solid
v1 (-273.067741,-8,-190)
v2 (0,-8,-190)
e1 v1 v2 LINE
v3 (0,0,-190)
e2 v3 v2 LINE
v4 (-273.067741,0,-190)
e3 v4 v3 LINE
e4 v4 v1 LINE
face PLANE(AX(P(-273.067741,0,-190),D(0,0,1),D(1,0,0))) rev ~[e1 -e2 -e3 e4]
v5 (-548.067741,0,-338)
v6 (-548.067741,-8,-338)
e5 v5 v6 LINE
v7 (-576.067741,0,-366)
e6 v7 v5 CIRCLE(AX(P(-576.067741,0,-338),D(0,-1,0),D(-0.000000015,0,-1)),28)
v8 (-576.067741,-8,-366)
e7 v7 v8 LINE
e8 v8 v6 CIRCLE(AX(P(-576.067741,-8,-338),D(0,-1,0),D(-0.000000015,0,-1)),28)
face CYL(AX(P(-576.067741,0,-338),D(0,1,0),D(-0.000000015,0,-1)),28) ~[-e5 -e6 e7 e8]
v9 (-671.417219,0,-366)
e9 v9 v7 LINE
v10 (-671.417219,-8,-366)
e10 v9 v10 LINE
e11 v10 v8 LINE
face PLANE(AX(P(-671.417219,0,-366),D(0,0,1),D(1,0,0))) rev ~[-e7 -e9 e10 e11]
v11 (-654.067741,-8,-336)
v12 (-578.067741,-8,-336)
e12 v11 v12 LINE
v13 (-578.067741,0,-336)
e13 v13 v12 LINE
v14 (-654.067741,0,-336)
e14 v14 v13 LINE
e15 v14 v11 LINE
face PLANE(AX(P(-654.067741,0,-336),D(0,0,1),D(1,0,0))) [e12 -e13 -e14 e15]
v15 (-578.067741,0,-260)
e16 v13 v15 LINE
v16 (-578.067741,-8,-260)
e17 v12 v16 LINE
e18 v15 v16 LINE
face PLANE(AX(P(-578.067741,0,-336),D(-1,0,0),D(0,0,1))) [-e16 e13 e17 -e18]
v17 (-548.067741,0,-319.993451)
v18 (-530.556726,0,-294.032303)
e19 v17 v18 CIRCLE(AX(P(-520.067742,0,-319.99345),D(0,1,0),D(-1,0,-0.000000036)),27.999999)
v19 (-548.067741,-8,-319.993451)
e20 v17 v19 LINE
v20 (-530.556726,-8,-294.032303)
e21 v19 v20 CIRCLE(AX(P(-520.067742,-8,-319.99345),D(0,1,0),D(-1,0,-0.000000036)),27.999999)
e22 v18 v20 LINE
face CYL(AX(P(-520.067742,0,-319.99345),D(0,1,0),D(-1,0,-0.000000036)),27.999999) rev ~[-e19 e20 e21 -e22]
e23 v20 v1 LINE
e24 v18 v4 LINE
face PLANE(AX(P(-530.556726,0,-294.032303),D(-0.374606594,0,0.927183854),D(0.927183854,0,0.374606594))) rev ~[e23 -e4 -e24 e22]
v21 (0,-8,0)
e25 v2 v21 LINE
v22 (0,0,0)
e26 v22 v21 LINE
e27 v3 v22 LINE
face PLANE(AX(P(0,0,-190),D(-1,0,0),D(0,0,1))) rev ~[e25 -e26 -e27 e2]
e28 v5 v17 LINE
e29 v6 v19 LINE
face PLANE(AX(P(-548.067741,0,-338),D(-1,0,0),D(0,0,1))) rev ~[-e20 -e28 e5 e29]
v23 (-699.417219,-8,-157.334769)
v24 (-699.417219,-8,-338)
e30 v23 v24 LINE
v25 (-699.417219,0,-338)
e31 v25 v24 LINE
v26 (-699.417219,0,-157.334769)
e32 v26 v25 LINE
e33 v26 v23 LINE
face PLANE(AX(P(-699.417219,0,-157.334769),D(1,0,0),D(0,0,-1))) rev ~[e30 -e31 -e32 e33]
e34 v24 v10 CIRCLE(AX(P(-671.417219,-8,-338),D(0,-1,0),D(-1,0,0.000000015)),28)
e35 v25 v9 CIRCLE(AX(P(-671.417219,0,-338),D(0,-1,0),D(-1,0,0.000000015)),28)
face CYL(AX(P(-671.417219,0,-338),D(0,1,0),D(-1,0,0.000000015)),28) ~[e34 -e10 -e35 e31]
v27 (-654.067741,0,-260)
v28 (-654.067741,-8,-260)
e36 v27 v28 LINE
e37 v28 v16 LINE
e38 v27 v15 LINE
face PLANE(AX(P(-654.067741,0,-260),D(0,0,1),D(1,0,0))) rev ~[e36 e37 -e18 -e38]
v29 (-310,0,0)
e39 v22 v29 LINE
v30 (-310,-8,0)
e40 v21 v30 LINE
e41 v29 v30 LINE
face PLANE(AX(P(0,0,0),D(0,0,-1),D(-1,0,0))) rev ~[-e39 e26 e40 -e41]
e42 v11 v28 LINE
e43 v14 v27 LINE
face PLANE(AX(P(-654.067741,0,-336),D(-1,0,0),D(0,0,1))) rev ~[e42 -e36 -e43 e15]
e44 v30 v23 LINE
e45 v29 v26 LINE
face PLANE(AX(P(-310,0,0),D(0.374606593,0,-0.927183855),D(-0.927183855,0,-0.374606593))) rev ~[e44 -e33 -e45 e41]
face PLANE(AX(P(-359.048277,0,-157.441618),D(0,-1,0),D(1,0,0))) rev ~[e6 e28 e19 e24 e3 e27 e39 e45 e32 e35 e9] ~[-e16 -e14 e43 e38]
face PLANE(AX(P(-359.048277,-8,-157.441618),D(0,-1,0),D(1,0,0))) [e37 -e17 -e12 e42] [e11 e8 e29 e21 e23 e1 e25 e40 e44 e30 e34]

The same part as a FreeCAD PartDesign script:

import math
import FreeCAD as App
import Part
import Sketcher

V = App.Vector
Q = App.Units.Quantity


def add_polygon(sketch, points):
    """Adds a closed chain of lines whose ends are joined by coincident constraints."""
    first, n = sketch.GeometryCount, len(points)
    for a, b in zip(points, points[1:] + points[:1]):
        sketch.addGeometry(Part.LineSegment(App.Vector(*a, 0), App.Vector(*b, 0)), False)
    for i in range(n):
        sketch.addConstraint(Sketcher.Constraint("Coincident", first + i, 2, first + (i + 1) % n, 1))

doc = App.newDocument("Part")
body = doc.addObject("PartDesign::Body", "Body")

# Sketch on XZ plane
sketch1 = body.newObject("Sketcher::SketchObject", "Sketch")
sketch1.AttachmentSupport = (doc.getObject("XZ_Plane"), [""])
sketch1.MapMode = "FlatFace"
sketch1.addGeometry(Part.LineSegment(V(0, -190, 0), V(0, 0, 0)), False)  # 0
sketch1.addGeometry(Part.LineSegment(V(0, 0, 0), V(-310, 0, 0)), False)  # 1
sketch1.addGeometry(Part.LineSegment(V(-310, 0, 0), V(-699, -157, 0)), False)  # 2
sketch1.addGeometry(Part.LineSegment(V(-699, -157, 0), V(-699, -338, 0)), False)  # 3
sketch1.addGeometry(Part.ArcOfCircle(Part.Circle(V(-671, -338, 0), V(0, 0, 1), 28), math.radians(180), math.radians(270)), False)  # 4
sketch1.addGeometry(Part.LineSegment(V(-671, -366, 0), V(-576, -366, 0)), False)  # 5
sketch1.addGeometry(Part.ArcOfCircle(Part.Circle(V(-576, -338, 0), V(0, 0, 1), 28), math.radians(-90), math.radians(0)), False)  # 6
sketch1.addGeometry(Part.LineSegment(V(-548, -338, 0), V(-548, -320, 0)), False)  # 7
sketch1.addGeometry(Part.ArcOfCircle(Part.Circle(V(-520, -320, 0), V(0, 0, 1), 28), math.radians(112), math.radians(180)), False)  # 8
sketch1.addGeometry(Part.LineSegment(V(-531, -294, 0), V(-273, -190, 0)), False)  # 9
sketch1.addGeometry(Part.LineSegment(V(-273, -190, 0), V(0, -190, 0)), False)  # 10
add_polygon(sketch1, [(-578, -336), (-654, -336), (-654, -260), (-578, -260)])  # lines 11-14
sketch1.addConstraint([
    Sketcher.Constraint("Coincident", 0, 2, 1, 1),
    Sketcher.Constraint("Coincident", 1, 2, 2, 1),
    Sketcher.Constraint("Coincident", 2, 2, 3, 1),
    Sketcher.Constraint("Tangent", 3, 2, 4, 1),
    Sketcher.Constraint("Tangent", 4, 2, 5, 1),
    Sketcher.Constraint("Tangent", 5, 2, 6, 1),
    Sketcher.Constraint("Tangent", 6, 2, 7, 1),
    Sketcher.Constraint("Tangent", 7, 2, 8, 2),
    Sketcher.Constraint("Tangent", 8, 1, 9, 1),
    Sketcher.Constraint("Coincident", 9, 2, 10, 1),
    Sketcher.Constraint("Coincident", 10, 2, 0, 1),
    Sketcher.Constraint("Vertical", 0),
    Sketcher.Constraint("Horizontal", 1),
    Sketcher.Constraint("Vertical", 3),
    Sketcher.Constraint("Horizontal", 5),
    Sketcher.Constraint("Vertical", 7),
    Sketcher.Constraint("Horizontal", 10),
    Sketcher.Constraint("Horizontal", 11),
    Sketcher.Constraint("Vertical", 12),
    Sketcher.Constraint("Horizontal", 13),
    Sketcher.Constraint("Vertical", 14),
    Sketcher.Constraint("Coincident", 0, 2, -1, 1),
    Sketcher.Constraint("Equal", 4, 6),
    Sketcher.Constraint("Equal", 6, 8),
    Sketcher.Constraint("Parallel", 2, 9),
    Sketcher.Constraint("Equal", 13, 12),
    Sketcher.Constraint("Radius", 4, Q("28 mm")),
    Sketcher.Constraint("DistanceX", 1, 2, 1, 1, Q("310 mm")),
    Sketcher.Constraint("DistanceX", 11, 2, 11, 1, Q("76 mm")),
    Sketcher.Constraint("DistanceY", 0, 1, 0, 2, Q("190 mm")),
    Sketcher.Constraint("Angle", 2, Q("-158 deg")),
    Sketcher.Constraint("Distance", 2, Q("420 mm")),
    Sketcher.Constraint("DistanceY", 4, 3, -1, 1, Q("338 mm")),
    Sketcher.Constraint("DistanceY", 11, 2, -1, 1, Q("336 mm")),
    Sketcher.Constraint("DistanceX", 8, 3, 9, 2, Q("247.000001 mm")),
    Sketcher.Constraint("DistanceX", 11, 2, 6, 3, Q("78 mm")),
    Sketcher.Constraint("DistanceX", 5, 1, 5, 2, Q("95.349478 mm")),
])
pad1 = body.newObject("PartDesign::Pad", "Pad")
pad1.Profile = sketch1
pad1.Length = 8

doc.recompute()
